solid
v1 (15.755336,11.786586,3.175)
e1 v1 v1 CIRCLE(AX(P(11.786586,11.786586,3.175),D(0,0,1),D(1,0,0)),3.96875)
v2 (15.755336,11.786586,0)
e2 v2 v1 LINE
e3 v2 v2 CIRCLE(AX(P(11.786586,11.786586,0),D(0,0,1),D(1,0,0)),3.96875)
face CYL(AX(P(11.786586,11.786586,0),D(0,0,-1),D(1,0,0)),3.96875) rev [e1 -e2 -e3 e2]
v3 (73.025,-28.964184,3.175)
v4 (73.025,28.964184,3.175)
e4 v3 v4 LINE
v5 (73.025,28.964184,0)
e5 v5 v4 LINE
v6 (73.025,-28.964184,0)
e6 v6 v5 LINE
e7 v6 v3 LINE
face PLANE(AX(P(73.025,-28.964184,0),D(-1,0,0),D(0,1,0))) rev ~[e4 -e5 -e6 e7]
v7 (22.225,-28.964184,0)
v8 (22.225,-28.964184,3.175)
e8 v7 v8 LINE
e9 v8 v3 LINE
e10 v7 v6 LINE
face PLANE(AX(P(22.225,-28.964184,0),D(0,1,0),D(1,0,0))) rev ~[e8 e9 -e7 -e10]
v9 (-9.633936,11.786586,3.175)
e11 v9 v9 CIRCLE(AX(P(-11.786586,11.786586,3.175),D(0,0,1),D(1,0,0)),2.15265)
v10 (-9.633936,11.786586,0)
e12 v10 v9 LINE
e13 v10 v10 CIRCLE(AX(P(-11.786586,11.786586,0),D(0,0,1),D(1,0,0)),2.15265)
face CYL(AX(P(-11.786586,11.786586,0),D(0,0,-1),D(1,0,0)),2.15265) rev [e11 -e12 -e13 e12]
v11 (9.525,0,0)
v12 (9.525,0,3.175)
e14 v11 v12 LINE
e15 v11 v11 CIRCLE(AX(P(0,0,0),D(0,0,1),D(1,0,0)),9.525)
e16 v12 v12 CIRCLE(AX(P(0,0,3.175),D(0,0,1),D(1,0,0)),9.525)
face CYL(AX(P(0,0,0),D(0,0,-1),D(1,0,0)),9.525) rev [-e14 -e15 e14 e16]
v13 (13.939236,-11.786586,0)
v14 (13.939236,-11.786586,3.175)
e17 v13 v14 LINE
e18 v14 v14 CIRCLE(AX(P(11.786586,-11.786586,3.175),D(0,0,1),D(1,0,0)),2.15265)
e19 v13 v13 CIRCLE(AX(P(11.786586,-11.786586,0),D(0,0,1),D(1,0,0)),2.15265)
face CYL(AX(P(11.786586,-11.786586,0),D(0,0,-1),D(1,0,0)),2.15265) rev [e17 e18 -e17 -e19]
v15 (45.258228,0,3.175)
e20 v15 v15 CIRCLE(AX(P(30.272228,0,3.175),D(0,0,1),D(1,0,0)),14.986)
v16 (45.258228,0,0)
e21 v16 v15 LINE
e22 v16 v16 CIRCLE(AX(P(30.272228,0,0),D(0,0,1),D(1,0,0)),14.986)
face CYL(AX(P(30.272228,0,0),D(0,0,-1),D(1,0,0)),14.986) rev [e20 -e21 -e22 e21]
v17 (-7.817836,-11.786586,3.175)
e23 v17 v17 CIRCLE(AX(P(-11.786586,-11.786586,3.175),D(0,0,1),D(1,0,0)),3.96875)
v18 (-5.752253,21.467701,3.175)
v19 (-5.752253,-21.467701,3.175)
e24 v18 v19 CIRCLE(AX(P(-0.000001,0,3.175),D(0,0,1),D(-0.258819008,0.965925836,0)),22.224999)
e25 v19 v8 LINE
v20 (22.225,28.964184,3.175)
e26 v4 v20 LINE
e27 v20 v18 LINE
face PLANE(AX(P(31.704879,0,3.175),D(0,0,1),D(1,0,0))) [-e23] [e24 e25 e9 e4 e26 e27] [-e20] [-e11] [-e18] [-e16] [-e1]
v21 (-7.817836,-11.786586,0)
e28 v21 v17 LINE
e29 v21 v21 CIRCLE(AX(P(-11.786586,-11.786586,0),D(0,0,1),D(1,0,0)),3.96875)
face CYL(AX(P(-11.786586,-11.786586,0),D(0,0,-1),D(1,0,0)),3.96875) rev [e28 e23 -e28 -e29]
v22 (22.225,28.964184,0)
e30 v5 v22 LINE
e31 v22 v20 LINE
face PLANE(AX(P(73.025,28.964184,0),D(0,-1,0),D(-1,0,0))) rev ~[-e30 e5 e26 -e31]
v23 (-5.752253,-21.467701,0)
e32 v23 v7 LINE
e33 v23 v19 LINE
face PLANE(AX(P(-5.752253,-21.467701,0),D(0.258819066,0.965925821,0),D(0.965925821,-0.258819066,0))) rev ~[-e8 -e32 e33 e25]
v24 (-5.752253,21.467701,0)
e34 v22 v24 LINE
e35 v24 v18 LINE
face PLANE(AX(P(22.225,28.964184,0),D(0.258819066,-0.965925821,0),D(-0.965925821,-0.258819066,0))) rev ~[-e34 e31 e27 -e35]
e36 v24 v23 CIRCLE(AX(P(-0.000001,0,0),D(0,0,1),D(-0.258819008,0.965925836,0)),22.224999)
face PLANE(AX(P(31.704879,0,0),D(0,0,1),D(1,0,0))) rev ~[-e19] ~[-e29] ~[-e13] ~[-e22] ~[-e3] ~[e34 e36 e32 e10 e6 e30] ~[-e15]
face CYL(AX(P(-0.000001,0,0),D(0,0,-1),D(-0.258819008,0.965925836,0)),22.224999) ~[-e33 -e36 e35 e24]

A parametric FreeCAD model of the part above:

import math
import FreeCAD as App
import Part
import Sketcher
from FreeCAD import Vector
Q = App.Units.Quantity

doc = App.newDocument("Part")
body = doc.addObject("PartDesign::Body", "Body")

sketch1 = body.newObject("Sketcher::SketchObject", "Sketch")
sketch1.AttachmentSupport = (doc.getObject("XY_Plane"), [""])
sketch1.MapMode = "FlatFace"
sketch1.addGeometry(Part.LineSegment(Vector(73, 29, 0), Vector(22.2, 29, 0)), False)
sketch1.addGeometry(Part.LineSegment(Vector(22.2, 29, 0), Vector(-5.8, 21.5, 0)), False)
sketch1.addGeometry(Part.ArcOfCircle(Part.Circle(Vector(0, 0, 0), Vector(0, 0, 1), 22.2), math.radians(105), math.radians(255)), False)
sketch1.addGeometry(Part.LineSegment(Vector(-5.8, -21.5, 0), Vector(22.2, -29, 0)), False)
sketch1.addGeometry(Part.LineSegment(Vector(22.2, -29, 0), Vector(73, -29, 0)), False)
sketch1.addGeometry(Part.LineSegment(Vector(73, -29, 0), Vector(73, 29, 0)), False)
sketch1.addGeometry(Part.Circle(Vector(-11.8, -11.8, 0), Vector(0, 0, 1), 4), False)
sketch1.addGeometry(Part.Circle(Vector(11.8, -11.8, 0), Vector(0, 0, 1), 2.2), False)
sketch1.addGeometry(Part.Circle(Vector(0, 0, 0), Vector(0, 0, 1), 9.5), False)
sketch1.addGeometry(Part.Circle(Vector(-11.8, 11.8, 0), Vector(0, 0, 1), 2.2), False)
sketch1.addGeometry(Part.Circle(Vector(11.8, 11.8, 0), Vector(0, 0, 1), 4), False)
sketch1.addGeometry(Part.Circle(Vector(30.3, 0, 0), Vector(0, 0, 1), 15), False)
sketch1.addConstraint(Sketcher.Constraint("Coincident", 0, 2, 1, 1))
sketch1.addConstraint(Sketcher.Constraint("Tangent", 1, 2, 2, 1))
sketch1.addConstraint(Sketcher.Constraint("Tangent", 2, 2, 3, 1))
sketch1.addConstraint(Sketcher.Constraint("Coincident", 3, 2, 4, 1))
sketch1.addConstraint(Sketcher.Constraint("Coincident", 4, 2, 5, 1))
sketch1.addConstraint(Sketcher.Constraint("Coincident", 5, 2, 0, 1))
sketch1.addConstraint(Sketcher.Constraint("Horizontal", 0))
sketch1.addConstraint(Sketcher.Constraint("Horizontal", 4))
sketch1.addConstraint(Sketcher.Constraint("Vertical", 5))
sketch1.addConstraint(Sketcher.Constraint("Coincident", 2, 3, -1, 1))
sketch1.addConstraint(Sketcher.Constraint("Coincident", 8, 3, -1, 1))
sketch1.addConstraint(Sketcher.Constraint("Equal", 7, 9))
sketch1.addConstraint(Sketcher.Constraint("Equal", 6, 10))
sketch1.addConstraint(Sketcher.Constraint("Symmetric", 7, 3, 9, 3, -1, 1))
sketch1.addConstraint(Sketcher.Constraint("Symmetric", 6, 3, 10, 3, -1, 1))
sketch1.addConstraint(Sketcher.Constraint("Symmetric", 6, 3, 7, 3, -2))
sketch1.addConstraint(Sketcher.Constraint("Symmetric", 0, 2, 3, 2, -1))
sketch1.addConstraint(Sketcher.Constraint("PointOnObject", 11, 3, -1))
sketch1.addConstraint(Sketcher.Constraint("Diameter", 8, Q("0.75 in")))
sketch1.addConstraint(Sketcher.Constraint("Diameter", 11, Q("1.18 in")))
sketch1.addConstraint(Sketcher.Constraint("DistanceX", 0, 2, 0, 1, Q("2 in")))
sketch1.addConstraint(Sketcher.Constraint("Diameter", 6, Q("0.3125 in")))
sketch1.addConstraint(Sketcher.Constraint("Angle", 1, Q("-164.999999 deg")))
sketch1.addConstraint(Sketcher.Constraint("Radius", 2, Q("0.875 in")))
sketch1.addConstraint(Sketcher.Constraint("Diameter", 7, Q("0.1695 in")))
sketch1.addConstraint(Sketcher.Constraint("DistanceX", -1, 1, 0, 2, Q("0.875 in")))
sketch1.addConstraint(Sketcher.Constraint("DistanceX", 6, 3, 7, 3, 23.573172))
sketch1.addConstraint(Sketcher.Constraint("DistanceY", 6, 3, 9, 3, 23.573172))
sketch1.addConstraint(Sketcher.Constraint("DistanceX", 7, 3, 11, 3, 18.485642))
pad1 = body.newObject("PartDesign::Pad", "Pad")
pad1.Profile = sketch1
pad1.Length = Q("0.125 in")

doc.recompute()
